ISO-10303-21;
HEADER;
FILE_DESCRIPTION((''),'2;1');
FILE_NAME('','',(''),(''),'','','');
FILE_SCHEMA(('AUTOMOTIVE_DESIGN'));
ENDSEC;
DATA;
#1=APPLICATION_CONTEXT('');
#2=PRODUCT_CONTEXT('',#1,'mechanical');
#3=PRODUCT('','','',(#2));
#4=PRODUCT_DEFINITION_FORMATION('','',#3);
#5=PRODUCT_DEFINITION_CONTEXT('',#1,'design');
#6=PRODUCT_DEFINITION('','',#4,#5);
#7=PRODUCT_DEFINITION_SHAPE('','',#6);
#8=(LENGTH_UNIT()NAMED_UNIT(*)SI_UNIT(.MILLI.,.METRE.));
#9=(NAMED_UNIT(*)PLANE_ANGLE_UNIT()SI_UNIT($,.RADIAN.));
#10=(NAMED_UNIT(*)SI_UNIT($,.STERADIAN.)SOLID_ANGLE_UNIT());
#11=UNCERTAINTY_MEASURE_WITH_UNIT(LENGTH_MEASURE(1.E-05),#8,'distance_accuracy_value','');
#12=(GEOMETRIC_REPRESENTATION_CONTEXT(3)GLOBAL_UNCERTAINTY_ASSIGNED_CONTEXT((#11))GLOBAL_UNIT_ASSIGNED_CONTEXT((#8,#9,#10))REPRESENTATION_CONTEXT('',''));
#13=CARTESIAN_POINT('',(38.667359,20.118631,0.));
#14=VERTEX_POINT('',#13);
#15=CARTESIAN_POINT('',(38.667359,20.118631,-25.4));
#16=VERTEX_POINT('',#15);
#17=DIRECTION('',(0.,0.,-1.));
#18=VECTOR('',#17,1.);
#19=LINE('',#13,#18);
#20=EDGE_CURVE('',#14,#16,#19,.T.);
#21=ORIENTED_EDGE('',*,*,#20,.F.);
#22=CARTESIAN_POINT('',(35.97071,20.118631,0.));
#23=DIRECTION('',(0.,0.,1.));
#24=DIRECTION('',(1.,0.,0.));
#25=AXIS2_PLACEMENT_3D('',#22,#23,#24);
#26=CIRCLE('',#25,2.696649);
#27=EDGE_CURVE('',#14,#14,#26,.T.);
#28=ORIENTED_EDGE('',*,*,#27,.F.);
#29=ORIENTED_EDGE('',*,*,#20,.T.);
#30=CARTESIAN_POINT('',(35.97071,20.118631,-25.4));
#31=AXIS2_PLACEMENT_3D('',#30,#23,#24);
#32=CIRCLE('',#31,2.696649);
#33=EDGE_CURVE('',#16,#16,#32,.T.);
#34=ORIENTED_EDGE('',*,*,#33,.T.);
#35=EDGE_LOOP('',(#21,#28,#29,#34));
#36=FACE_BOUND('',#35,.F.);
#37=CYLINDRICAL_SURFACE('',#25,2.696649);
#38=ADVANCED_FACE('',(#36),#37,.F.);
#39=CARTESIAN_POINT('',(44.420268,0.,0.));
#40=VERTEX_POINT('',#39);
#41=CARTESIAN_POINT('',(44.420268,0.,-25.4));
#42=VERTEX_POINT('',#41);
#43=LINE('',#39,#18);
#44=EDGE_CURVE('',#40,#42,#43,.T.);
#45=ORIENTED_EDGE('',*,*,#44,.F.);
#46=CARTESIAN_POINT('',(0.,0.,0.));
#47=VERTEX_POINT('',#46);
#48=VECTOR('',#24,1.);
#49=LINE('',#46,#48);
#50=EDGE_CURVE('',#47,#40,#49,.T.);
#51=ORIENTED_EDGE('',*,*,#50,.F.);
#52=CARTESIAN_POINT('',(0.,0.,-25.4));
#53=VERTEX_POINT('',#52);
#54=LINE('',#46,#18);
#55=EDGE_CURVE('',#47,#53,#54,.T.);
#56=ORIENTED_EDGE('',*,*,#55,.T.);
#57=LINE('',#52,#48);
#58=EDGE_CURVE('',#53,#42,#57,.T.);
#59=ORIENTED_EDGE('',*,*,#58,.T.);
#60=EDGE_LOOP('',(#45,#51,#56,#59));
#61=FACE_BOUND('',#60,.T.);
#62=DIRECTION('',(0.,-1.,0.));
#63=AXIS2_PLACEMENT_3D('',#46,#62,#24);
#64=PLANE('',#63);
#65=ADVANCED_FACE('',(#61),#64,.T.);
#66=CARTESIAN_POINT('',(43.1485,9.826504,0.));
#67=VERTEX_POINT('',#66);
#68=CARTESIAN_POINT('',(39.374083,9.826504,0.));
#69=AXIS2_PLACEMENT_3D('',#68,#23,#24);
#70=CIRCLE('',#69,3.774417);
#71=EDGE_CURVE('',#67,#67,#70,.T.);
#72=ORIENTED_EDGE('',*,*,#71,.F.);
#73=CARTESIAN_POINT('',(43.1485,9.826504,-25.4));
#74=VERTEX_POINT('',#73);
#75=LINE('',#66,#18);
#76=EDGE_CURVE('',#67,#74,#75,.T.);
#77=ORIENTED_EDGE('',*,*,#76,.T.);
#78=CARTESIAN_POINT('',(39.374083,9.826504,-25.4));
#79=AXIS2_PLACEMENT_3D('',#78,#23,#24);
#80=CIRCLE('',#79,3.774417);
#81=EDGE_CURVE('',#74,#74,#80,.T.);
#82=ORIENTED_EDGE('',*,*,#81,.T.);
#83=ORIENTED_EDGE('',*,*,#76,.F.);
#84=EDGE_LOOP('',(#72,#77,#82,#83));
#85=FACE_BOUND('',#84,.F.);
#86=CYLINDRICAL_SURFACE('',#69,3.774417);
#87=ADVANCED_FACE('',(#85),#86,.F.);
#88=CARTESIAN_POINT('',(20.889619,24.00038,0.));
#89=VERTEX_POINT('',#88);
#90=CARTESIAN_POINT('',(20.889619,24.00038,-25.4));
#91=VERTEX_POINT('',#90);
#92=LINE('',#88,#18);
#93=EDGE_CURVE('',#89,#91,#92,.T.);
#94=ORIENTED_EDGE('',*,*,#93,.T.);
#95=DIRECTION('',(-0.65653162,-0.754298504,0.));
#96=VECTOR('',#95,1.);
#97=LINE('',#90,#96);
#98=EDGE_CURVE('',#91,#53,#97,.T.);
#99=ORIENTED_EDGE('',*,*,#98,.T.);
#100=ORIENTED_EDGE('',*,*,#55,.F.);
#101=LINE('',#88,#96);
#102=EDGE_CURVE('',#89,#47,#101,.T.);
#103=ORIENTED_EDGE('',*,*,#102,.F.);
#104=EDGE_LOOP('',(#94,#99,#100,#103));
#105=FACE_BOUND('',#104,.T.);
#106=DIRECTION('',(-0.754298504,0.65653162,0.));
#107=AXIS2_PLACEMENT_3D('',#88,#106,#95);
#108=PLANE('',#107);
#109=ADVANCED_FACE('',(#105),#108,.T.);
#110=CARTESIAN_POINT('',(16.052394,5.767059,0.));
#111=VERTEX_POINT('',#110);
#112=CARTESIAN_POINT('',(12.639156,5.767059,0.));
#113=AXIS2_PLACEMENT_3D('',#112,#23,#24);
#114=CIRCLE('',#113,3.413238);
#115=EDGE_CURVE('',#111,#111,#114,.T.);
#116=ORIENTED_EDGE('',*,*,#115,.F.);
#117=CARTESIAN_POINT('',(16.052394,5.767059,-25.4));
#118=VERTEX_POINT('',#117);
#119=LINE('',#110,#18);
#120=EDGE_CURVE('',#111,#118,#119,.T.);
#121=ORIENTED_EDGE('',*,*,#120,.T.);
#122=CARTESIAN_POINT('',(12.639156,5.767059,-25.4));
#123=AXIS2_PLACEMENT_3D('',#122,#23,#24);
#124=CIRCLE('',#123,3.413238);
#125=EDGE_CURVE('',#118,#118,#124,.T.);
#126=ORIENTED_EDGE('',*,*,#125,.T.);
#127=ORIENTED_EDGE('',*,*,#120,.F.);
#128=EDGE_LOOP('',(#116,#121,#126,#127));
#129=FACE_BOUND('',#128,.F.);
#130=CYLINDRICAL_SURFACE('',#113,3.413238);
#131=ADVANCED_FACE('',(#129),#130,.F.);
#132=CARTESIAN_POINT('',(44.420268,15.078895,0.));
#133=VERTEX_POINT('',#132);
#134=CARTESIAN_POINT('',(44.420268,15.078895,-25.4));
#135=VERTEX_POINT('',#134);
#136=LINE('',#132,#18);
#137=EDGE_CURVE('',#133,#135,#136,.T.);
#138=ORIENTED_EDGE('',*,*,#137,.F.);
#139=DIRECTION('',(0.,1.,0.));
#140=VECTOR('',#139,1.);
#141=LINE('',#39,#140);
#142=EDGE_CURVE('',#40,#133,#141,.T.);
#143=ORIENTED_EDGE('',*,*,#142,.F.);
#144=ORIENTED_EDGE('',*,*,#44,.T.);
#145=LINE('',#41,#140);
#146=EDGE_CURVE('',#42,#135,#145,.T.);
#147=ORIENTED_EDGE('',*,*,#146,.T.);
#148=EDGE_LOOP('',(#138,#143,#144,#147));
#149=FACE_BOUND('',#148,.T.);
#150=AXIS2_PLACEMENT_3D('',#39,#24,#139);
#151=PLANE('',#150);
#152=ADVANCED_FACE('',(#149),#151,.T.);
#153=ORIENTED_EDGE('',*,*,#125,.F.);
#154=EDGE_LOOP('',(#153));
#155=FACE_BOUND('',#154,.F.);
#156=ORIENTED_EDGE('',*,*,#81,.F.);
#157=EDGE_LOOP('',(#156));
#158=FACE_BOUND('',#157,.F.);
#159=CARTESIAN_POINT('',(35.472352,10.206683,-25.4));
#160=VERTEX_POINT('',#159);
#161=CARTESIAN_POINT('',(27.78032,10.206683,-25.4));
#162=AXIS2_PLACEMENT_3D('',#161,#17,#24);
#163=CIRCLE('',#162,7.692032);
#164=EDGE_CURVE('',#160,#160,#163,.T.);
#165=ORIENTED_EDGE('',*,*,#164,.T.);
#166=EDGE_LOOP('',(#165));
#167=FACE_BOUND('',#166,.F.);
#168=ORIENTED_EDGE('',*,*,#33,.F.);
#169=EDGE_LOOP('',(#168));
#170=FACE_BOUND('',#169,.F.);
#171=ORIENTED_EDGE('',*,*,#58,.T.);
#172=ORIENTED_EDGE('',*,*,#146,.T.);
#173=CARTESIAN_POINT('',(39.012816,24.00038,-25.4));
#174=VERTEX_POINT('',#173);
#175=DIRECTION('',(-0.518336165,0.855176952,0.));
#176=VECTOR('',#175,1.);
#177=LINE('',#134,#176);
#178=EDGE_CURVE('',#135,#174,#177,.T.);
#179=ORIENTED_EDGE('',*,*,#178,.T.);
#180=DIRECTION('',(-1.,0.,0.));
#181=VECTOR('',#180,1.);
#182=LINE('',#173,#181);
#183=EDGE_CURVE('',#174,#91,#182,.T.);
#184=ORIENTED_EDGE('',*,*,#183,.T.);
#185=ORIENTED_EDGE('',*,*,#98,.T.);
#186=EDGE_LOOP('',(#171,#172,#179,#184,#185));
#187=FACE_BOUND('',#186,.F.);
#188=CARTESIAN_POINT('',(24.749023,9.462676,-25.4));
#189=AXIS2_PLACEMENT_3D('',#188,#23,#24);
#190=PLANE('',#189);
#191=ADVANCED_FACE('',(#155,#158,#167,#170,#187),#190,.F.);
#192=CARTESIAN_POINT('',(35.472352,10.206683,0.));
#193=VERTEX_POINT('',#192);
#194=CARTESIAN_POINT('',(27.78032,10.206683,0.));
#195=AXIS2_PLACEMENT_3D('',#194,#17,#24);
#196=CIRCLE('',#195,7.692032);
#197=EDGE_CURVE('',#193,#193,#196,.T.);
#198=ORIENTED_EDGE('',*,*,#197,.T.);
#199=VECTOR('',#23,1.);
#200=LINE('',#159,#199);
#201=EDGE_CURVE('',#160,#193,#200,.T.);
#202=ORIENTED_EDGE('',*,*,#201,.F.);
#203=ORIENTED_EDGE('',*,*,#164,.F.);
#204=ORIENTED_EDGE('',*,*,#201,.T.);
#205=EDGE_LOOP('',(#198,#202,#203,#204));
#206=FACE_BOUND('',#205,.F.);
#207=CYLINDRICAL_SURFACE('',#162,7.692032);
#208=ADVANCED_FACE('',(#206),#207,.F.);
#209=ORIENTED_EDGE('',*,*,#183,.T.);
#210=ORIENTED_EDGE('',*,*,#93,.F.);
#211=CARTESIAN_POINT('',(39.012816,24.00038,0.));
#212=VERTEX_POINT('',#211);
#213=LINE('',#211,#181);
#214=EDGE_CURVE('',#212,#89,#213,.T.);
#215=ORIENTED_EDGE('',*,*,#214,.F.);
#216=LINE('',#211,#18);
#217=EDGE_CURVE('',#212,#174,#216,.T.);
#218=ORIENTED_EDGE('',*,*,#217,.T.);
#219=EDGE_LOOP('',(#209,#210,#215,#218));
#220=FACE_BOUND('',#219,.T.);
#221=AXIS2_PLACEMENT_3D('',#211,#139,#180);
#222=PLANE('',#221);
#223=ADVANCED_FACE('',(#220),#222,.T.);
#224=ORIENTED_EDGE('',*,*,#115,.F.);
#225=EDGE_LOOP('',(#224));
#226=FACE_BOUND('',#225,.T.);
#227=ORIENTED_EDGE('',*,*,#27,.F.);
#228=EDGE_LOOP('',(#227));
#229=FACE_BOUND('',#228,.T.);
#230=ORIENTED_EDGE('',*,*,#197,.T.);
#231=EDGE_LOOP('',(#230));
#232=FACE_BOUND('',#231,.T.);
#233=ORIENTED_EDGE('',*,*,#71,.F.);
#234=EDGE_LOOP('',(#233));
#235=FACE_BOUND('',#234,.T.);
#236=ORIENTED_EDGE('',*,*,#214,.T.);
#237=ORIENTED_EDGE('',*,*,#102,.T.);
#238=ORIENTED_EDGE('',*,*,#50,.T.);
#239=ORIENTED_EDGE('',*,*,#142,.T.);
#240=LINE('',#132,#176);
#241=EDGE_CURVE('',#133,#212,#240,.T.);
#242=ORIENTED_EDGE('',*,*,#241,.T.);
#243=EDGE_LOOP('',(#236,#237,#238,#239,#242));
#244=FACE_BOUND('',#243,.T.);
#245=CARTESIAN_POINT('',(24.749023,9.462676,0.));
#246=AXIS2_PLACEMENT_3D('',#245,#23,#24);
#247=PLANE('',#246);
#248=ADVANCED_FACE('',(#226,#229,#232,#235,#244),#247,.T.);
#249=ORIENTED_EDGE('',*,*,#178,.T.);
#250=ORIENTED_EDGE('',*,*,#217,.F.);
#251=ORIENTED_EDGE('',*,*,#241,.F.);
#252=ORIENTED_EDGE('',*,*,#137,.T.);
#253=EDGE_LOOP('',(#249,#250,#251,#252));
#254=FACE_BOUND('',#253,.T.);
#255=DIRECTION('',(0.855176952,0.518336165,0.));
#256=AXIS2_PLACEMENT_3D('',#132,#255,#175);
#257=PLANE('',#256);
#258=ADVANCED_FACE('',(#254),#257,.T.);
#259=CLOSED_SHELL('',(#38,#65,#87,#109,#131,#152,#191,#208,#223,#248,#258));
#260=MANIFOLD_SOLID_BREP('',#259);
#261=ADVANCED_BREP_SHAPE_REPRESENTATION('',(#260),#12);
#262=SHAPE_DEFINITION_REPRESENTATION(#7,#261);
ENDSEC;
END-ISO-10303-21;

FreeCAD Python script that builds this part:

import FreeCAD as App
import Part
import Sketcher
Q = App.Units.Quantity


def add_polygon(sketch, points):
    """Adds a closed chain of lines whose ends are joined by coincident constraints."""
    first, n = sketch.GeometryCount, len(points)
    for a, b in zip(points, points[1:] + points[:1]):
        sketch.addGeometry(Part.LineSegment(App.Vector(*a, 0), App.Vector(*b, 0)), False)
    for i in range(n):
        sketch.addConstraint(Sketcher.Constraint("Coincident", first + i, 2, first + (i + 1) % n, 1))

doc = App.newDocument("Part")
body = doc.addObject("PartDesign::Body", "Body")

sketch1 = doc.addObject("Sketcher::SketchObject", "Sketch")
body.addObject(sketch1)
sketch1.AttachmentSupport = (doc.XY_Plane, [""])
sketch1.MapMode = "FlatFace"
add_polygon(sketch1, [(21, 24), (0, 0), (44, 0), (44, 15), (39, 24)])
sketch1.addConstraint([
    Sketcher.Constraint("Horizontal", 1),
    Sketcher.Constraint("Vertical", 2),
    Sketcher.Constraint("Horizontal", 4),
    Sketcher.Constraint("Coincident", 0, 2, -1, 1),
    Sketcher.Constraint("DistanceX", 1, 1, 1, 2, 44.420268),
    Sketcher.Constraint("DistanceX", 4, 2, 4, 1, 18.123197),
    Sketcher.Constraint("DistanceY", 2, 1, 2, 2, 15.078895),
    Sketcher.Constraint("DistanceY", -1, 1, 3, 2, 24.00038),
    Sketcher.Constraint("DistanceX", -1, 1, 4, 2, 20.889619),
])
pad1 = doc.addObject("PartDesign::Pad", "Pad")
body.addObject(pad1)
pad1.Profile = sketch1
pad1.Length = Q("1 in")
pad1.Reversed = True

sketch2 = doc.addObject("Sketcher::SketchObject", "Sketch001")
body.addObject(sketch2)
sketch2.AttachmentSupport = (doc.XY_Plane, [""])
sketch2.MapMode = "FlatFace"
sketch2.AttachmentOffset = App.Placement(App.Vector(0, 0, -1 * 25.4), App.Rotation())
sketch2.addGeometry(Part.Circle(App.Vector(28, 10, 0), App.Vector(0, 0, 1), 8), False)
sketch2.addConstraint([
    Sketcher.Constraint("Diameter", 0, 15.384064),
    Sketcher.Constraint("DistanceX", -1, 1, 0, 3, 27.78032),
    Sketcher.Constraint("DistanceY", -1, 1, 0, 3, 10.206683),
])
pocket1 = doc.addObject("PartDesign::Pocket", "Pocket")
body.addObject(pocket1)
pocket1.Profile = sketch2
pocket1.Length = Q("1 in")
pocket1.Reversed = True

sketch3 = doc.addObject("Sketcher::SketchObject", "Sketch002")
body.addObject(sketch3)
sketch3.AttachmentSupport = (doc.XY_Plane, [""])
sketch3.MapMode = "FlatFace"
sketch3.addGeometry([
    Part.Circle(App.Vector(36, 20.1, 0), App.Vector(0, 0, 1), 2.7),
    Part.Circle(App.Vector(39.4, 9.8, 0), App.Vector(0, 0, 1), 3.8),
    Part.Circle(App.Vector(12.6, 5.8, 0), App.Vector(0, 0, 1), 3.4),
], False)
sketch3.addConstraint([
    Sketcher.Constraint("Diameter", 0, 5.393298),
    Sketcher.Constraint("Diameter", 1, 7.548834),
    Sketcher.Constraint("Diameter", 2, 6.826476),
    Sketcher.Constraint("DistanceX", -1, 1, 0, 3, 35.97071),
    Sketcher.Constraint("DistanceY", -1, 1, 0, 3, 20.118631),
    Sketcher.Constraint("DistanceY", -1, 1, 2, 3, 5.767059),
    Sketcher.Constraint("DistanceX", -1, 1, 1, 3, 39.374083),
    Sketcher.Constraint("DistanceY", -1, 1, 1, 3, 9.826504),
    Sketcher.Constraint("DistanceX", -1, 1, 2, 3, 12.639156),
])
pocket2 = doc.addObject("PartDesign::Pocket", "Pocket001")
body.addObject(pocket2)
pocket2.Profile = sketch3
pocket2.Length = Q("1 in")

doc.recompute()
